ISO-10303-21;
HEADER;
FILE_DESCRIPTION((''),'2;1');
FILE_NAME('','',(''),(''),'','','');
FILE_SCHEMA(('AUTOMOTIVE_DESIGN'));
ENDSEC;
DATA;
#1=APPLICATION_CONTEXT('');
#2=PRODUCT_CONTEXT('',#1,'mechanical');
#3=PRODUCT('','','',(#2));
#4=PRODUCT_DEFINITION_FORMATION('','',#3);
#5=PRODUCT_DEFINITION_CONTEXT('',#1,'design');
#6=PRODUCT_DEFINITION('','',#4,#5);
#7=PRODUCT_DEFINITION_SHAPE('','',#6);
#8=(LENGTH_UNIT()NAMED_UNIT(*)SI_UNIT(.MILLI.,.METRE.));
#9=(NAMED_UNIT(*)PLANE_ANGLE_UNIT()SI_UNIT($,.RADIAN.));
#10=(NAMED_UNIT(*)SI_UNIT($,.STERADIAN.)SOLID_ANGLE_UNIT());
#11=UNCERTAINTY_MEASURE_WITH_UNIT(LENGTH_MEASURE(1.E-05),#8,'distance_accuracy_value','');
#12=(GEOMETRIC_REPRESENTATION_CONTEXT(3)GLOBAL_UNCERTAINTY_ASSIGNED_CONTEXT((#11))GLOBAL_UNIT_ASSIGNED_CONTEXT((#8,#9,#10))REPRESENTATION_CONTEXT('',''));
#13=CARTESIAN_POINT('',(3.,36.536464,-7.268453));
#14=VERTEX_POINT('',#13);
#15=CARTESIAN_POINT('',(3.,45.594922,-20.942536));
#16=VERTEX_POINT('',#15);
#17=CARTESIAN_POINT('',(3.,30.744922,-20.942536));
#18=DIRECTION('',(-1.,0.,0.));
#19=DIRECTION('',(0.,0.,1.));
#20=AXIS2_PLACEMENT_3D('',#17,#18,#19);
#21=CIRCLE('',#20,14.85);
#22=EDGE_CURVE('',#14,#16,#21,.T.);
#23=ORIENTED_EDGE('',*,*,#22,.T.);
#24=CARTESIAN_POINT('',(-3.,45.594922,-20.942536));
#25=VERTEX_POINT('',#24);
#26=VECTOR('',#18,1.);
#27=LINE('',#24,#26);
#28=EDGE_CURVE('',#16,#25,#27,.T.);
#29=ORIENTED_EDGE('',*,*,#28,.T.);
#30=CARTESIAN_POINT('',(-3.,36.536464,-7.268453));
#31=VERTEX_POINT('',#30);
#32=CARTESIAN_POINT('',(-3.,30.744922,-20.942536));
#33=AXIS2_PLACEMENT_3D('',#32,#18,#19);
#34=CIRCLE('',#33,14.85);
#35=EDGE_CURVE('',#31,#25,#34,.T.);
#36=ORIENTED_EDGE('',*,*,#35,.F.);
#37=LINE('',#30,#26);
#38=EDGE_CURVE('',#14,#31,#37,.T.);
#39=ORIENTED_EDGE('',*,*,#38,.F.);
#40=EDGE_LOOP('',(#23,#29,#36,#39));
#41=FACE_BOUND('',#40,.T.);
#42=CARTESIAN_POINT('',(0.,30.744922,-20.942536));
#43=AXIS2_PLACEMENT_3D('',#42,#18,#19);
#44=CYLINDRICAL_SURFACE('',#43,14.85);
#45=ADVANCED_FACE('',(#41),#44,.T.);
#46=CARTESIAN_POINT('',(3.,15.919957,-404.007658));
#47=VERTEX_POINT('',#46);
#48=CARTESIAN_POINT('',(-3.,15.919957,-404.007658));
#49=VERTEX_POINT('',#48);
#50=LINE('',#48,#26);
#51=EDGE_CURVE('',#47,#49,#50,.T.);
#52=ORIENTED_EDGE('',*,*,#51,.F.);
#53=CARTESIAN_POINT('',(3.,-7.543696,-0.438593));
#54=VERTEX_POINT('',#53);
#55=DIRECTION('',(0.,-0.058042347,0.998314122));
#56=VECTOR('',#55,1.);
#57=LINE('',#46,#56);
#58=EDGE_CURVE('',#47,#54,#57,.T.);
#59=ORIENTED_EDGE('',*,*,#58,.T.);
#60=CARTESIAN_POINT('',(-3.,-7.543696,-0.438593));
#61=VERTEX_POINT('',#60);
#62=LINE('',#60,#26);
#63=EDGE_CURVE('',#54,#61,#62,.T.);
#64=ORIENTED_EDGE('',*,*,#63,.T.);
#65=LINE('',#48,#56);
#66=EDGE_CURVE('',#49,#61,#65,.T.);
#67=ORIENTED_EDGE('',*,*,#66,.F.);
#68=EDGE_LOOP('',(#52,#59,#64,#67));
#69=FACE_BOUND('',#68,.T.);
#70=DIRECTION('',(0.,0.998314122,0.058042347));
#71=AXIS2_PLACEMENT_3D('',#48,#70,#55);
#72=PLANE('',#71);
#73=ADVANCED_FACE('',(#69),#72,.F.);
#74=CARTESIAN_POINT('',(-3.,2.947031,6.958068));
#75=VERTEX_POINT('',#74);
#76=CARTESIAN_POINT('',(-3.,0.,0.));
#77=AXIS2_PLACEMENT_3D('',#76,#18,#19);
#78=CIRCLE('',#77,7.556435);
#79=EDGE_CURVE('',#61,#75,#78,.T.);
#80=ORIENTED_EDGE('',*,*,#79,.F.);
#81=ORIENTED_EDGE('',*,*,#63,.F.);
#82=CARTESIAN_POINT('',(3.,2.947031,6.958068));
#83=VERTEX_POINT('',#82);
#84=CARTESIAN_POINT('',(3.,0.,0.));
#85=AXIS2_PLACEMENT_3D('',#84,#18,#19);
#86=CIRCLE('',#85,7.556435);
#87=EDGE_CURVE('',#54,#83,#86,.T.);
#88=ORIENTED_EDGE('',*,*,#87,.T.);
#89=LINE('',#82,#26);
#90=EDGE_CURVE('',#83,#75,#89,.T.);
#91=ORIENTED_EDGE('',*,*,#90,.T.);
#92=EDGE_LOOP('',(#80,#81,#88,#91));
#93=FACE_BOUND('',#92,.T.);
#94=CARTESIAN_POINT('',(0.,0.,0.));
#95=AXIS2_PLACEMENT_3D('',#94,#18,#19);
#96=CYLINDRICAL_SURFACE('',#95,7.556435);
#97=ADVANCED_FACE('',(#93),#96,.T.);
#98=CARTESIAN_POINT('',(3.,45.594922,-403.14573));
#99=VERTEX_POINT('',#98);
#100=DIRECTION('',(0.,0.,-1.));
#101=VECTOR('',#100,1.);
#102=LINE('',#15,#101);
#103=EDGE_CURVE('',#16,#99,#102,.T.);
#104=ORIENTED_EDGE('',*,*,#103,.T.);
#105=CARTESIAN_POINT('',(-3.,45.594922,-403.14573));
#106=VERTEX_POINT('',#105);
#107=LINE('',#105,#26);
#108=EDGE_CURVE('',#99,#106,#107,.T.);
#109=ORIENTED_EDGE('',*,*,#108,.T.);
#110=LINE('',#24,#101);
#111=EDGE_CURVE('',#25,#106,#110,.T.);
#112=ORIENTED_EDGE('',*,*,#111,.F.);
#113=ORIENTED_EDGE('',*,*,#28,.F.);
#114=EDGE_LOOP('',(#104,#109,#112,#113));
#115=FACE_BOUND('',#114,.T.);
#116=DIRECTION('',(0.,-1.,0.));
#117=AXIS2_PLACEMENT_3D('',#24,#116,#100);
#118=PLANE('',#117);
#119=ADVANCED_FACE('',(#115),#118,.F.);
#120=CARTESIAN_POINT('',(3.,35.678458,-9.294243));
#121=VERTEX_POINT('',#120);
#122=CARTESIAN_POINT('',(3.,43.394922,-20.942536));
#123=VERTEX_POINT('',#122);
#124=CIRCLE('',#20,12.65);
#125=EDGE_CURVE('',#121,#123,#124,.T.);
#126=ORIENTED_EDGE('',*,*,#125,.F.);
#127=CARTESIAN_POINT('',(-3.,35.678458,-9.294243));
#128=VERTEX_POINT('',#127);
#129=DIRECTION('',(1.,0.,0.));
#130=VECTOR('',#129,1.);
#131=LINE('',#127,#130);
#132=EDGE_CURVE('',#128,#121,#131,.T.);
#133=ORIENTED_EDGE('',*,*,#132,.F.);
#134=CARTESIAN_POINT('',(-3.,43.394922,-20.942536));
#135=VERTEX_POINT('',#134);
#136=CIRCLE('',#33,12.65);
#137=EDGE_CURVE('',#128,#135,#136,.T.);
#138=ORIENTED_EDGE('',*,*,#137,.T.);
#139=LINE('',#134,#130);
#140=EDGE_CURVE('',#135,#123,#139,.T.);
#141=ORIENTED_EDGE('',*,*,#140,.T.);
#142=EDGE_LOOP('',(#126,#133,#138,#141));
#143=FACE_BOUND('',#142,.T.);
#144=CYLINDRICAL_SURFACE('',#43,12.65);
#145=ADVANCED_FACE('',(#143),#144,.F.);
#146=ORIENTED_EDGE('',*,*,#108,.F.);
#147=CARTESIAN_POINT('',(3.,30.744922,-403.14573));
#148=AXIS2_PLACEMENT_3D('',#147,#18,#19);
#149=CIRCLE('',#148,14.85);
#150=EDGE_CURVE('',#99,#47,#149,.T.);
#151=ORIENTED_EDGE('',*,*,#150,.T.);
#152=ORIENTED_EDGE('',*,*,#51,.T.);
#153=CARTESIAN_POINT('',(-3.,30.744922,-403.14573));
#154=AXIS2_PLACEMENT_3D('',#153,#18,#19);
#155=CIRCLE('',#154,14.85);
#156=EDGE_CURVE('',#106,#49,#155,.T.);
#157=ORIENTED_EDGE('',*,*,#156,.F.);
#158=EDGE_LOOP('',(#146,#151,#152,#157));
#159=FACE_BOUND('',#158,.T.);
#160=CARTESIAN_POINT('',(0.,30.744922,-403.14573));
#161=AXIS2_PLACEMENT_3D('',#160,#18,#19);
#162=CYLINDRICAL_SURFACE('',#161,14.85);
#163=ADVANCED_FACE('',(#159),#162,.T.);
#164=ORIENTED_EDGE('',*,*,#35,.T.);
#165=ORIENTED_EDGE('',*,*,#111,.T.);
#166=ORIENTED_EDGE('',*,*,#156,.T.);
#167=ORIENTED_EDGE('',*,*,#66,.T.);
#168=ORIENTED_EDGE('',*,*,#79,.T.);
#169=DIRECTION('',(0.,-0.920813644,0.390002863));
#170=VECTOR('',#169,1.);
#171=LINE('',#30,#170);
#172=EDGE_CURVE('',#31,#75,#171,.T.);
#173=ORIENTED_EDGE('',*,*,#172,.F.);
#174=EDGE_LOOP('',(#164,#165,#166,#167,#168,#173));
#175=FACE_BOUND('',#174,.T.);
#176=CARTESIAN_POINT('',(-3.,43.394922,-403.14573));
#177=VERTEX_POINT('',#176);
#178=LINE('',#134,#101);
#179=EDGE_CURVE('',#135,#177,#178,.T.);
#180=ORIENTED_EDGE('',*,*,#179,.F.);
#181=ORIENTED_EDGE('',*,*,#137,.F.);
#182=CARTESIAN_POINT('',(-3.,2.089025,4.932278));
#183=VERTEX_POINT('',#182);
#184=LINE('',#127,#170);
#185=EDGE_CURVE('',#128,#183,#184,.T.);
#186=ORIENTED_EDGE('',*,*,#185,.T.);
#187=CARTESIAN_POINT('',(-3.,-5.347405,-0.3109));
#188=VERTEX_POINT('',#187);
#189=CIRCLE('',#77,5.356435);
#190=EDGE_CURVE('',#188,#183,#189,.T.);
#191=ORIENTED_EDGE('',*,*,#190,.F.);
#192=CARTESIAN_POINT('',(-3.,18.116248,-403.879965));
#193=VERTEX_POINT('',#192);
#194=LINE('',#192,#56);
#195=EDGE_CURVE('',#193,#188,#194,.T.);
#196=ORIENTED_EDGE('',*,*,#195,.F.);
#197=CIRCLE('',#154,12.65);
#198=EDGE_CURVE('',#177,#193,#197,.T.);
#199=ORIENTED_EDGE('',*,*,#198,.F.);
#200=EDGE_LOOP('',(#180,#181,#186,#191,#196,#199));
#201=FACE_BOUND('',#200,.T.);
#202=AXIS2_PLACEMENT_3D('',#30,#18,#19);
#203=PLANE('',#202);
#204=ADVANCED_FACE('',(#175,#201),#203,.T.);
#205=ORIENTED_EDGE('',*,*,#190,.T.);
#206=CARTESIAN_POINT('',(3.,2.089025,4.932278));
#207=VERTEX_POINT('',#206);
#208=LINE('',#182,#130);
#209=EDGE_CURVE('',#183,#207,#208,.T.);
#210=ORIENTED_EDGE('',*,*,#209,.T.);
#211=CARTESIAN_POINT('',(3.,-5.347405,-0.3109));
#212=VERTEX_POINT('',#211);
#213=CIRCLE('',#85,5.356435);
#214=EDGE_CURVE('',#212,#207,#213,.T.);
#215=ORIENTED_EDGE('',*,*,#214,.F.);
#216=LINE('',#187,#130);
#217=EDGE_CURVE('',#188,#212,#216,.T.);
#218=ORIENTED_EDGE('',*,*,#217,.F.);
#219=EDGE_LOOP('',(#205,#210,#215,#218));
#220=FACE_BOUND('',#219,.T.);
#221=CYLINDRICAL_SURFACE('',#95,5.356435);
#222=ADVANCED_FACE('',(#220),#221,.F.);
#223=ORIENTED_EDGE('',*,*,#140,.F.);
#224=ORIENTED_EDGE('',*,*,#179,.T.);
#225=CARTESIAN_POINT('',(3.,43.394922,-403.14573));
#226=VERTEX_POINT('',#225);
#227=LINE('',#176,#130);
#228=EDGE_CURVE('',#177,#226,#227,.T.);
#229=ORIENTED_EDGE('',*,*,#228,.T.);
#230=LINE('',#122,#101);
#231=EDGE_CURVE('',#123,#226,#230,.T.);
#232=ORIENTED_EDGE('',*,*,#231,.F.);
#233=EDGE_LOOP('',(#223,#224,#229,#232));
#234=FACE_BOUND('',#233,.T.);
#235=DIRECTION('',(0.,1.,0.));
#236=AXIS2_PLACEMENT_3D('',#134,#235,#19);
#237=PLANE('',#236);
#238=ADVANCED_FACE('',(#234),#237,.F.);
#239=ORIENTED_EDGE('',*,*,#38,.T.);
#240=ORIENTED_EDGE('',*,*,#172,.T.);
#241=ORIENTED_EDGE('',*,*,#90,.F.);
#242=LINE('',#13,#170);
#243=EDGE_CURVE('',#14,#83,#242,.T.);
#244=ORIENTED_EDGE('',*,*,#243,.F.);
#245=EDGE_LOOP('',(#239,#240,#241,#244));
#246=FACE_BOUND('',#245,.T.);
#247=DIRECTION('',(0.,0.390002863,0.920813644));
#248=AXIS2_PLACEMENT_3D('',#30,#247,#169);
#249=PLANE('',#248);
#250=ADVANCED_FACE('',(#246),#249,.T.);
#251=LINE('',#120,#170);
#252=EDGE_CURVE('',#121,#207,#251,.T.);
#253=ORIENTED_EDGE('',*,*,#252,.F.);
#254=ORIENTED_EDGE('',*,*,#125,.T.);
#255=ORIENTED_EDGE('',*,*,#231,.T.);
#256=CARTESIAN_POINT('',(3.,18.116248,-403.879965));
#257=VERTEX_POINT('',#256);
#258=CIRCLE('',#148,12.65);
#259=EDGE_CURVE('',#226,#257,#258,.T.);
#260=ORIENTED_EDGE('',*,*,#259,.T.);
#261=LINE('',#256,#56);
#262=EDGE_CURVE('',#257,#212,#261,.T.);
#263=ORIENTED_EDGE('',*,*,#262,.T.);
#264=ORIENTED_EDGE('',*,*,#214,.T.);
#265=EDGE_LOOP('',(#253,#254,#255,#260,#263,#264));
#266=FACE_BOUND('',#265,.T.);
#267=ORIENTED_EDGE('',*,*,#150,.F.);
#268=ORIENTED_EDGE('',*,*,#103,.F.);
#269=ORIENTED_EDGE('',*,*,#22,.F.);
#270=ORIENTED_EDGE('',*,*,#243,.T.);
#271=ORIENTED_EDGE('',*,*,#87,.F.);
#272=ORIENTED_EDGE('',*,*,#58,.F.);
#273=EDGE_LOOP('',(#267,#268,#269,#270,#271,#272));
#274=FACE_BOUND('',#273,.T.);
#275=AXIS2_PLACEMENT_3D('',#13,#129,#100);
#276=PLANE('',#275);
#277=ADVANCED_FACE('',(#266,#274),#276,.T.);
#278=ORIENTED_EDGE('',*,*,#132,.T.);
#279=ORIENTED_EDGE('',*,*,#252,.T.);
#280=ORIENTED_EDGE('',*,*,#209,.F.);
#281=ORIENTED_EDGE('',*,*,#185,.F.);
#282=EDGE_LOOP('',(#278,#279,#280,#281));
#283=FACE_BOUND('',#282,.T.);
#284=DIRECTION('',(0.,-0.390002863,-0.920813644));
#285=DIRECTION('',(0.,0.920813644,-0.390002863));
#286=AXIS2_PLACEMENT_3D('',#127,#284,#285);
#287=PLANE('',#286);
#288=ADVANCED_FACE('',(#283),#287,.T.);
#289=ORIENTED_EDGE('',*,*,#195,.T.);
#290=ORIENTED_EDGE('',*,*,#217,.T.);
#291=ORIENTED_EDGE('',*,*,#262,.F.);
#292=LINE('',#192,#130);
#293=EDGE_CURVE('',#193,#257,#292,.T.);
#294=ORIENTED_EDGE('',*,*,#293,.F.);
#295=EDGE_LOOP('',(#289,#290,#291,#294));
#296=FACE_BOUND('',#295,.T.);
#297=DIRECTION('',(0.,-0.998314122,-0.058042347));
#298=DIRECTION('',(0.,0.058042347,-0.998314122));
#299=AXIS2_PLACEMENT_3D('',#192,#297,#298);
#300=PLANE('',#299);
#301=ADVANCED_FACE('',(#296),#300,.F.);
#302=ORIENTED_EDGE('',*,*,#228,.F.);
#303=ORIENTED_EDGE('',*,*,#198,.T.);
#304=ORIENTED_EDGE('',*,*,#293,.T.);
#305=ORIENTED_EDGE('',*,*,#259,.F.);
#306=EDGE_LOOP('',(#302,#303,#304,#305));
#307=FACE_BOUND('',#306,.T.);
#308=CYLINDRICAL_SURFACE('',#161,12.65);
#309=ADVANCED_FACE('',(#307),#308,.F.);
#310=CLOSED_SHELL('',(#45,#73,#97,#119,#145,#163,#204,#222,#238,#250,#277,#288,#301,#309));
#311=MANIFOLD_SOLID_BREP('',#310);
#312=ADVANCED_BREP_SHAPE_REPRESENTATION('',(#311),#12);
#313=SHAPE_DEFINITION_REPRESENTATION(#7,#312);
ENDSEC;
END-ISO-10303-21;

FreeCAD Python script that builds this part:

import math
import FreeCAD as App
import Part
import Sketcher

V = App.Vector
Q = App.Units.Quantity

doc = App.newDocument("Part")
body = doc.addObject("PartDesign::Body", "Body")

# Sketch on an angled plane
sketch1 = body.newObject("Sketcher::SketchObject", "Sketch")
sketch1.Placement = App.Placement(V(0, 2.089025, 4.932278), App.Rotation(V(1, 0, 0), V(0, 0.390002863, 0.920813644), V(0, -0.920813644, 0.390002863), "ZXY"))
sketch1.addGeometry([
    Part.LineSegment(V(-3, 2.2, 0), V(-3, 0, 0)),
    Part.LineSegment(V(-3, 0, 0), V(3, 0, 0)),
    Part.LineSegment(V(3, 0, 0), V(3, 2.2, 0)),
    Part.LineSegment(V(3, 2.2, 0), V(-3, 2.2, 0)),
], False)
sketch1.addConstraint([
    Sketcher.Constraint("Coincident", 0, 2, 1, 1),
    Sketcher.Constraint("Coincident", 1, 2, 2, 1),
    Sketcher.Constraint("Coincident", 2, 2, 3, 1),
    Sketcher.Constraint("Coincident", 3, 2, 0, 1),
    Sketcher.Constraint("Vertical", 0),
    Sketcher.Constraint("Horizontal", 1),
    Sketcher.Constraint("Vertical", 2),
    Sketcher.Constraint("Horizontal", 3),
    Sketcher.Constraint("Symmetric", 0, 2, 1, 2, -1, 1),
    Sketcher.Constraint("DistanceX", 1, 1, 1, 2, Q("6 mm")),
    Sketcher.Constraint("DistanceY", 0, 2, 0, 1, Q("2.2 mm")),
])

# Sketch on YZ plane
sketch2 = body.newObject("Sketcher::SketchObject", "Sketch001")
sketch2.AttachmentSupport = (doc.getObject("YZ_Plane"), [""])
sketch2.MapMode = "FlatFace"
sketch2.addGeometry([
    Part.LineSegment(V(-5, 0, 0), V(18, -404, 0)),  # 0
    Part.ArcOfCircle(Part.Circle(V(31, -403, 0), V(0, 0, 1), 13), math.radians(-177), math.radians(0)),  # 1
    Part.LineSegment(V(43, -403, 0), V(43, -21, 0)),  # 2
    Part.ArcOfCircle(Part.Circle(V(31, -21, 0), V(0, 0, 1), 13), math.radians(0), math.radians(67)),  # 3
    Part.LineSegment(V(36, -9, 0), V(2, 5, 0)),  # 4
    Part.ArcOfCircle(Part.Circle(V(0, 0, 0), V(0, 0, 1), 5), math.radians(67), math.radians(183)),  # 5
], False)
sketch2.addConstraint([
    Sketcher.Constraint("Tangent", 0, 2, 1, 1),
    Sketcher.Constraint("Tangent", 1, 2, 2, 1),
    Sketcher.Constraint("Tangent", 2, 2, 3, 1),
    Sketcher.Constraint("Tangent", 3, 2, 4, 1),
    Sketcher.Constraint("Tangent", 4, 2, 5, 1),
    Sketcher.Constraint("Tangent", 5, 2, 0, 1),
    Sketcher.Constraint("Vertical", 2),
    Sketcher.Constraint("Coincident", 5, 3, -1, 1),
    Sketcher.Constraint("Equal", 1, 3),
    Sketcher.Constraint("Radius", 1, Q("12.65 mm")),
    Sketcher.Constraint("Radius", 5, Q("5.356435 mm")),
    Sketcher.Constraint("DistanceY", 2, 1, 2, 2, Q("382.203194 mm")),
    Sketcher.Constraint("DistanceX", -1, 1, 1, 3, Q("30.744922 mm")),
    Sketcher.Constraint("DistanceY", 1, 3, -1, 1, Q("403.14573 mm")),
])
doc.recompute()

additivepipe = body.newObject("PartDesign::AdditivePipe", "AdditivePipe")
additivepipe.Profile = sketch1
additivepipe.Spine = (sketch2, ["Edge1", "Edge2", "Edge3", "Edge4", "Edge5", "Edge6"])

doc.recompute()
